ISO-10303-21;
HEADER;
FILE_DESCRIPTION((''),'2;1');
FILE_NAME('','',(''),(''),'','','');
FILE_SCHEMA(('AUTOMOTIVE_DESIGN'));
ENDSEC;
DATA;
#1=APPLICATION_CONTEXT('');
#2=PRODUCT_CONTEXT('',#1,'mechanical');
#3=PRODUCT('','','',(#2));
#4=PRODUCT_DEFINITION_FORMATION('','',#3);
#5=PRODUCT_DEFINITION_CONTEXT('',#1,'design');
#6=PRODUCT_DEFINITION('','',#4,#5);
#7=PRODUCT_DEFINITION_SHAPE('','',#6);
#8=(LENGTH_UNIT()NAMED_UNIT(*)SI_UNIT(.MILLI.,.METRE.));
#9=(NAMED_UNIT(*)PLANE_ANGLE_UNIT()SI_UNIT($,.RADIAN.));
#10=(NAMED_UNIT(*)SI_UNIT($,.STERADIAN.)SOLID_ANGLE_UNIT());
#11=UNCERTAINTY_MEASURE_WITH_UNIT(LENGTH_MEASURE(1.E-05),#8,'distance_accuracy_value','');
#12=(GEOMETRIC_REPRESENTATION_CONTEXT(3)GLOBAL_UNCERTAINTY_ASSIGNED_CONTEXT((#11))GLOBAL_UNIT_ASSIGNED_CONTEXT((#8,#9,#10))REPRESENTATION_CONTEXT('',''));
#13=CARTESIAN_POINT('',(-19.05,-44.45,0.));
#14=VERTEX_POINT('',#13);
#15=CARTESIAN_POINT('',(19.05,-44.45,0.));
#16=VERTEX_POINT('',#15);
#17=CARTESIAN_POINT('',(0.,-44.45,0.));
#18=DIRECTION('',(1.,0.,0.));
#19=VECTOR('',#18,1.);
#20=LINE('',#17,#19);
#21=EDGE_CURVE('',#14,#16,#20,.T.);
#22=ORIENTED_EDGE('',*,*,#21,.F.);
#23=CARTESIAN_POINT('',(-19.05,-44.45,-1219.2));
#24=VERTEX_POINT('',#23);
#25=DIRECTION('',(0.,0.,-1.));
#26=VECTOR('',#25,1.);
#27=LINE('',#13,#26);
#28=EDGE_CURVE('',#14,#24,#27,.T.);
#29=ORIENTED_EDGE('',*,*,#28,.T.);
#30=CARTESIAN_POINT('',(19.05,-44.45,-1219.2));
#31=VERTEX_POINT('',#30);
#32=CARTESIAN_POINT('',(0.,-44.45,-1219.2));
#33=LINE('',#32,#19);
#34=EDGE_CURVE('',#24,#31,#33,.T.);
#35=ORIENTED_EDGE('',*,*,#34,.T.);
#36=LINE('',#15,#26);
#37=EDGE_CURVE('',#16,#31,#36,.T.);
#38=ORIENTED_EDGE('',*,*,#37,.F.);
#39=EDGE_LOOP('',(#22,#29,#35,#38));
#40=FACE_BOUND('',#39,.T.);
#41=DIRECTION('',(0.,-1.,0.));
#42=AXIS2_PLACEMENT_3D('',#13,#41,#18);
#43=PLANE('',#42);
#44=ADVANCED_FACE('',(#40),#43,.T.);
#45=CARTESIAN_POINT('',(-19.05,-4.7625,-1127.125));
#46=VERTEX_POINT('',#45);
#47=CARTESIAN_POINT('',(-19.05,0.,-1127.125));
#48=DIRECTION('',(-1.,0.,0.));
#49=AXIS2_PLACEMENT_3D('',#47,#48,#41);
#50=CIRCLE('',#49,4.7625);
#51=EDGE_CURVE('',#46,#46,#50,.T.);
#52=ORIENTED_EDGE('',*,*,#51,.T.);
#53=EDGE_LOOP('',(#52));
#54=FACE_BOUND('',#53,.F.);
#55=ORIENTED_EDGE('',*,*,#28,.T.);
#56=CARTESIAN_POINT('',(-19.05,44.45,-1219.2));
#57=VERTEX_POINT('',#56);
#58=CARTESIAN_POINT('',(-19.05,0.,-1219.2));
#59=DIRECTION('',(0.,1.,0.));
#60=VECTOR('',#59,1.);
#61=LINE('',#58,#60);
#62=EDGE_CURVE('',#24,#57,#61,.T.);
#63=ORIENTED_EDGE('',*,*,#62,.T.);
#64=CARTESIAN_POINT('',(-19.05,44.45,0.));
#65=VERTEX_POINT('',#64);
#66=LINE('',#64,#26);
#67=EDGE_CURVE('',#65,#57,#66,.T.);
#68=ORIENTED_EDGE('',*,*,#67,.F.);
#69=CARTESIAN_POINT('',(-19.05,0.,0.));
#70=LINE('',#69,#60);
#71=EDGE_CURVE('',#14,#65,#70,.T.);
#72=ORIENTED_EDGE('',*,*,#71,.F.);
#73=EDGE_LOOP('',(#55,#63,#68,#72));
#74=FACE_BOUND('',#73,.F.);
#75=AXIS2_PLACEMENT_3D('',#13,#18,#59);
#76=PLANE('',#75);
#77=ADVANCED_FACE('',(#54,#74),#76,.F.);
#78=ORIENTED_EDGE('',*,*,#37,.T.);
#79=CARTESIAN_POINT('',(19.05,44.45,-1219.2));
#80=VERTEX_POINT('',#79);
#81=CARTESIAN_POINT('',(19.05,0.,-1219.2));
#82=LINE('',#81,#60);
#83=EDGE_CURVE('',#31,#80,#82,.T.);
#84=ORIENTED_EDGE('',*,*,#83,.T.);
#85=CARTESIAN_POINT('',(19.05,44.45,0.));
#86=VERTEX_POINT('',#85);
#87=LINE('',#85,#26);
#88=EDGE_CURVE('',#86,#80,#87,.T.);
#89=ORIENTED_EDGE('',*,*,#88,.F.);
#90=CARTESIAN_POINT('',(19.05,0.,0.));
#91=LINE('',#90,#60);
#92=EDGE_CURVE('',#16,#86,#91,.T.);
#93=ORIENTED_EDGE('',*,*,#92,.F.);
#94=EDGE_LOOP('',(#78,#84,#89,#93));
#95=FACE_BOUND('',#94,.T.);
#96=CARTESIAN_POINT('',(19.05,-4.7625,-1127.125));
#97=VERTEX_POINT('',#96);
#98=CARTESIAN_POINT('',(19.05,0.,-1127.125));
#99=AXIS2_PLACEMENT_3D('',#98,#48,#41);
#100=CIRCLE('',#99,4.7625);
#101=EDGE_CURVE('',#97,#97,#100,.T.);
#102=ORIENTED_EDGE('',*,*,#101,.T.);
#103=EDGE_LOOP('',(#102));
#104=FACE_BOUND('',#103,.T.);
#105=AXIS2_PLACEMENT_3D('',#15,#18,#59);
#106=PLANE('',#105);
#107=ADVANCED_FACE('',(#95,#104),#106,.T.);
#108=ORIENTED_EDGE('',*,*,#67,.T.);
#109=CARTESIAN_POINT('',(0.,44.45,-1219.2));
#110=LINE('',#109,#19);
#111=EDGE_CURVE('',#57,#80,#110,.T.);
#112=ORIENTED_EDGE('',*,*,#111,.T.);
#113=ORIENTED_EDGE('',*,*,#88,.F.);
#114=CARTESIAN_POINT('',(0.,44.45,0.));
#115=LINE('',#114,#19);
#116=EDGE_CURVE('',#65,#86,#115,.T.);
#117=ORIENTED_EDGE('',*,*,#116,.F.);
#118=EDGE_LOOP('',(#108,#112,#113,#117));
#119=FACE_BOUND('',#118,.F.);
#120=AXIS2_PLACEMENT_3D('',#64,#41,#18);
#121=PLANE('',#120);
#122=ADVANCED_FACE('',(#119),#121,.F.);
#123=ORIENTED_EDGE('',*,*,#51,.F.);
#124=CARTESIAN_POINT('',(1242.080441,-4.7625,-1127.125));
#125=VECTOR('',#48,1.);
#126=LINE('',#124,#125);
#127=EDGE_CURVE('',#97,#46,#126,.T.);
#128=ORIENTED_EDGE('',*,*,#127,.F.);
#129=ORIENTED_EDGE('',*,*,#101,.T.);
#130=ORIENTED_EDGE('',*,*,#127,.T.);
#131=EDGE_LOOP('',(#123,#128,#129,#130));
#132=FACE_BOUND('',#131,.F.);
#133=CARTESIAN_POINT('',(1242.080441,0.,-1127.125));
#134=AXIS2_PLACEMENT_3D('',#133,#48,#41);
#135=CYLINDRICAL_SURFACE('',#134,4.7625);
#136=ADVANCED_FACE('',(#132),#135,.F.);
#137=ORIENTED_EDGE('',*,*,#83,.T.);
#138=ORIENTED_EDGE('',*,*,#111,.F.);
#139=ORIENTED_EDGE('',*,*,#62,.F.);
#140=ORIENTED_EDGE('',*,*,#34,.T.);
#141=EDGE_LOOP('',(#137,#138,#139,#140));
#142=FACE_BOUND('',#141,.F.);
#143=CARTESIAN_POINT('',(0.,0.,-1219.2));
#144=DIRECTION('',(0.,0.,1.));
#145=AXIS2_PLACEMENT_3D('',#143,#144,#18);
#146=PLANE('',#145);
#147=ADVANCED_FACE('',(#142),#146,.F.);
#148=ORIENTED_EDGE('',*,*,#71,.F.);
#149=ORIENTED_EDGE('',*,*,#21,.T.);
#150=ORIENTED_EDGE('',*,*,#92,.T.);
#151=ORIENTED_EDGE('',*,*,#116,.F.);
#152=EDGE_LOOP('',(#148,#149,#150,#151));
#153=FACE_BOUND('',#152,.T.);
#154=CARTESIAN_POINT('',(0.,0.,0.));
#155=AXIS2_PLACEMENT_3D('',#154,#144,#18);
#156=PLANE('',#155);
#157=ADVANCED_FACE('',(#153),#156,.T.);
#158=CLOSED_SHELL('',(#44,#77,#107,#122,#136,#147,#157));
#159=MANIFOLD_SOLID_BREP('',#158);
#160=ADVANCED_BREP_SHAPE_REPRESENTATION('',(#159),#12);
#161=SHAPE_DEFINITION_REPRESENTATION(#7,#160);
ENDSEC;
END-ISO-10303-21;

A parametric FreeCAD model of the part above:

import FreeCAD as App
import Part
import Sketcher
Q = App.Units.Quantity


def add_polygon(sketch, points):
    """Adds a closed chain of lines whose ends are joined by coincident constraints."""
    first, n = sketch.GeometryCount, len(points)
    for a, b in zip(points, points[1:] + points[:1]):
        sketch.addGeometry(Part.LineSegment(App.Vector(*a, 0), App.Vector(*b, 0)), False)
    for i in range(n):
        sketch.addConstraint(Sketcher.Constraint("Coincident", first + i, 2, first + (i + 1) % n, 1))

doc = App.newDocument("Part")
body = doc.addObject("PartDesign::Body", "Body")

sketch1 = body.newObject("Sketcher::SketchObject", "Sketch")
sketch1.AttachmentSupport = (doc.getObject("XY_Plane"), [""])
sketch1.MapMode = "FlatFace"
add_polygon(sketch1, [(-19.05, 44.45), (-19.05, -44.45), (19.05, -44.45), (19.05, 44.45)])
sketch1.addConstraint(Sketcher.Constraint("Vertical", 0))
sketch1.addConstraint(Sketcher.Constraint("Horizontal", 1))
sketch1.addConstraint(Sketcher.Constraint("Vertical", 2))
sketch1.addConstraint(Sketcher.Constraint("Horizontal", 3))
sketch1.addConstraint(Sketcher.Constraint("Symmetric", 0, 2, 2, 2, -1, 1))
sketch1.addConstraint(Sketcher.Constraint("DistanceX", 1, 1, 1, 2, Q("1.5 in")))
sketch1.addConstraint(Sketcher.Constraint("DistanceY", 0, 2, 0, 1, Q("3.5 in")))
pad1 = body.newObject("PartDesign::Pad", "Pad")
pad1.Profile = sketch1
pad1.Length = Q("48 in")
pad1.Reversed = True

sketch2 = body.newObject("Sketcher::SketchObject", "Sketch001")
sketch2.AttachmentSupport = (doc.getObject("YZ_Plane"), [""])
sketch2.MapMode = "FlatFace"
sketch2.AttachmentOffset = App.Placement(App.Vector(0, 0, 0.75 * 25.4), App.Rotation())
sketch2.addGeometry(Part.Circle(App.Vector(0, -1127.125, 0), App.Vector(0, 0, 1), 4.7625), False)
sketch2.addConstraint(Sketcher.Constraint("PointOnObject", 0, 3, -2))
sketch2.addConstraint(Sketcher.Constraint("Diameter", 0, Q("0.375 in")))
sketch2.addConstraint(Sketcher.Constraint("DistanceY", 0, 3, -1, 1, Q("44.375 in")))
doc.recompute()
hole = body.newObject("PartDesign::Hole", "Hole")
hole.Profile = sketch2
hole.ThreadType = "None"
hole.Diameter = Q("0.375 in")
hole.DepthType = "ThroughAll"

doc.recompute()
